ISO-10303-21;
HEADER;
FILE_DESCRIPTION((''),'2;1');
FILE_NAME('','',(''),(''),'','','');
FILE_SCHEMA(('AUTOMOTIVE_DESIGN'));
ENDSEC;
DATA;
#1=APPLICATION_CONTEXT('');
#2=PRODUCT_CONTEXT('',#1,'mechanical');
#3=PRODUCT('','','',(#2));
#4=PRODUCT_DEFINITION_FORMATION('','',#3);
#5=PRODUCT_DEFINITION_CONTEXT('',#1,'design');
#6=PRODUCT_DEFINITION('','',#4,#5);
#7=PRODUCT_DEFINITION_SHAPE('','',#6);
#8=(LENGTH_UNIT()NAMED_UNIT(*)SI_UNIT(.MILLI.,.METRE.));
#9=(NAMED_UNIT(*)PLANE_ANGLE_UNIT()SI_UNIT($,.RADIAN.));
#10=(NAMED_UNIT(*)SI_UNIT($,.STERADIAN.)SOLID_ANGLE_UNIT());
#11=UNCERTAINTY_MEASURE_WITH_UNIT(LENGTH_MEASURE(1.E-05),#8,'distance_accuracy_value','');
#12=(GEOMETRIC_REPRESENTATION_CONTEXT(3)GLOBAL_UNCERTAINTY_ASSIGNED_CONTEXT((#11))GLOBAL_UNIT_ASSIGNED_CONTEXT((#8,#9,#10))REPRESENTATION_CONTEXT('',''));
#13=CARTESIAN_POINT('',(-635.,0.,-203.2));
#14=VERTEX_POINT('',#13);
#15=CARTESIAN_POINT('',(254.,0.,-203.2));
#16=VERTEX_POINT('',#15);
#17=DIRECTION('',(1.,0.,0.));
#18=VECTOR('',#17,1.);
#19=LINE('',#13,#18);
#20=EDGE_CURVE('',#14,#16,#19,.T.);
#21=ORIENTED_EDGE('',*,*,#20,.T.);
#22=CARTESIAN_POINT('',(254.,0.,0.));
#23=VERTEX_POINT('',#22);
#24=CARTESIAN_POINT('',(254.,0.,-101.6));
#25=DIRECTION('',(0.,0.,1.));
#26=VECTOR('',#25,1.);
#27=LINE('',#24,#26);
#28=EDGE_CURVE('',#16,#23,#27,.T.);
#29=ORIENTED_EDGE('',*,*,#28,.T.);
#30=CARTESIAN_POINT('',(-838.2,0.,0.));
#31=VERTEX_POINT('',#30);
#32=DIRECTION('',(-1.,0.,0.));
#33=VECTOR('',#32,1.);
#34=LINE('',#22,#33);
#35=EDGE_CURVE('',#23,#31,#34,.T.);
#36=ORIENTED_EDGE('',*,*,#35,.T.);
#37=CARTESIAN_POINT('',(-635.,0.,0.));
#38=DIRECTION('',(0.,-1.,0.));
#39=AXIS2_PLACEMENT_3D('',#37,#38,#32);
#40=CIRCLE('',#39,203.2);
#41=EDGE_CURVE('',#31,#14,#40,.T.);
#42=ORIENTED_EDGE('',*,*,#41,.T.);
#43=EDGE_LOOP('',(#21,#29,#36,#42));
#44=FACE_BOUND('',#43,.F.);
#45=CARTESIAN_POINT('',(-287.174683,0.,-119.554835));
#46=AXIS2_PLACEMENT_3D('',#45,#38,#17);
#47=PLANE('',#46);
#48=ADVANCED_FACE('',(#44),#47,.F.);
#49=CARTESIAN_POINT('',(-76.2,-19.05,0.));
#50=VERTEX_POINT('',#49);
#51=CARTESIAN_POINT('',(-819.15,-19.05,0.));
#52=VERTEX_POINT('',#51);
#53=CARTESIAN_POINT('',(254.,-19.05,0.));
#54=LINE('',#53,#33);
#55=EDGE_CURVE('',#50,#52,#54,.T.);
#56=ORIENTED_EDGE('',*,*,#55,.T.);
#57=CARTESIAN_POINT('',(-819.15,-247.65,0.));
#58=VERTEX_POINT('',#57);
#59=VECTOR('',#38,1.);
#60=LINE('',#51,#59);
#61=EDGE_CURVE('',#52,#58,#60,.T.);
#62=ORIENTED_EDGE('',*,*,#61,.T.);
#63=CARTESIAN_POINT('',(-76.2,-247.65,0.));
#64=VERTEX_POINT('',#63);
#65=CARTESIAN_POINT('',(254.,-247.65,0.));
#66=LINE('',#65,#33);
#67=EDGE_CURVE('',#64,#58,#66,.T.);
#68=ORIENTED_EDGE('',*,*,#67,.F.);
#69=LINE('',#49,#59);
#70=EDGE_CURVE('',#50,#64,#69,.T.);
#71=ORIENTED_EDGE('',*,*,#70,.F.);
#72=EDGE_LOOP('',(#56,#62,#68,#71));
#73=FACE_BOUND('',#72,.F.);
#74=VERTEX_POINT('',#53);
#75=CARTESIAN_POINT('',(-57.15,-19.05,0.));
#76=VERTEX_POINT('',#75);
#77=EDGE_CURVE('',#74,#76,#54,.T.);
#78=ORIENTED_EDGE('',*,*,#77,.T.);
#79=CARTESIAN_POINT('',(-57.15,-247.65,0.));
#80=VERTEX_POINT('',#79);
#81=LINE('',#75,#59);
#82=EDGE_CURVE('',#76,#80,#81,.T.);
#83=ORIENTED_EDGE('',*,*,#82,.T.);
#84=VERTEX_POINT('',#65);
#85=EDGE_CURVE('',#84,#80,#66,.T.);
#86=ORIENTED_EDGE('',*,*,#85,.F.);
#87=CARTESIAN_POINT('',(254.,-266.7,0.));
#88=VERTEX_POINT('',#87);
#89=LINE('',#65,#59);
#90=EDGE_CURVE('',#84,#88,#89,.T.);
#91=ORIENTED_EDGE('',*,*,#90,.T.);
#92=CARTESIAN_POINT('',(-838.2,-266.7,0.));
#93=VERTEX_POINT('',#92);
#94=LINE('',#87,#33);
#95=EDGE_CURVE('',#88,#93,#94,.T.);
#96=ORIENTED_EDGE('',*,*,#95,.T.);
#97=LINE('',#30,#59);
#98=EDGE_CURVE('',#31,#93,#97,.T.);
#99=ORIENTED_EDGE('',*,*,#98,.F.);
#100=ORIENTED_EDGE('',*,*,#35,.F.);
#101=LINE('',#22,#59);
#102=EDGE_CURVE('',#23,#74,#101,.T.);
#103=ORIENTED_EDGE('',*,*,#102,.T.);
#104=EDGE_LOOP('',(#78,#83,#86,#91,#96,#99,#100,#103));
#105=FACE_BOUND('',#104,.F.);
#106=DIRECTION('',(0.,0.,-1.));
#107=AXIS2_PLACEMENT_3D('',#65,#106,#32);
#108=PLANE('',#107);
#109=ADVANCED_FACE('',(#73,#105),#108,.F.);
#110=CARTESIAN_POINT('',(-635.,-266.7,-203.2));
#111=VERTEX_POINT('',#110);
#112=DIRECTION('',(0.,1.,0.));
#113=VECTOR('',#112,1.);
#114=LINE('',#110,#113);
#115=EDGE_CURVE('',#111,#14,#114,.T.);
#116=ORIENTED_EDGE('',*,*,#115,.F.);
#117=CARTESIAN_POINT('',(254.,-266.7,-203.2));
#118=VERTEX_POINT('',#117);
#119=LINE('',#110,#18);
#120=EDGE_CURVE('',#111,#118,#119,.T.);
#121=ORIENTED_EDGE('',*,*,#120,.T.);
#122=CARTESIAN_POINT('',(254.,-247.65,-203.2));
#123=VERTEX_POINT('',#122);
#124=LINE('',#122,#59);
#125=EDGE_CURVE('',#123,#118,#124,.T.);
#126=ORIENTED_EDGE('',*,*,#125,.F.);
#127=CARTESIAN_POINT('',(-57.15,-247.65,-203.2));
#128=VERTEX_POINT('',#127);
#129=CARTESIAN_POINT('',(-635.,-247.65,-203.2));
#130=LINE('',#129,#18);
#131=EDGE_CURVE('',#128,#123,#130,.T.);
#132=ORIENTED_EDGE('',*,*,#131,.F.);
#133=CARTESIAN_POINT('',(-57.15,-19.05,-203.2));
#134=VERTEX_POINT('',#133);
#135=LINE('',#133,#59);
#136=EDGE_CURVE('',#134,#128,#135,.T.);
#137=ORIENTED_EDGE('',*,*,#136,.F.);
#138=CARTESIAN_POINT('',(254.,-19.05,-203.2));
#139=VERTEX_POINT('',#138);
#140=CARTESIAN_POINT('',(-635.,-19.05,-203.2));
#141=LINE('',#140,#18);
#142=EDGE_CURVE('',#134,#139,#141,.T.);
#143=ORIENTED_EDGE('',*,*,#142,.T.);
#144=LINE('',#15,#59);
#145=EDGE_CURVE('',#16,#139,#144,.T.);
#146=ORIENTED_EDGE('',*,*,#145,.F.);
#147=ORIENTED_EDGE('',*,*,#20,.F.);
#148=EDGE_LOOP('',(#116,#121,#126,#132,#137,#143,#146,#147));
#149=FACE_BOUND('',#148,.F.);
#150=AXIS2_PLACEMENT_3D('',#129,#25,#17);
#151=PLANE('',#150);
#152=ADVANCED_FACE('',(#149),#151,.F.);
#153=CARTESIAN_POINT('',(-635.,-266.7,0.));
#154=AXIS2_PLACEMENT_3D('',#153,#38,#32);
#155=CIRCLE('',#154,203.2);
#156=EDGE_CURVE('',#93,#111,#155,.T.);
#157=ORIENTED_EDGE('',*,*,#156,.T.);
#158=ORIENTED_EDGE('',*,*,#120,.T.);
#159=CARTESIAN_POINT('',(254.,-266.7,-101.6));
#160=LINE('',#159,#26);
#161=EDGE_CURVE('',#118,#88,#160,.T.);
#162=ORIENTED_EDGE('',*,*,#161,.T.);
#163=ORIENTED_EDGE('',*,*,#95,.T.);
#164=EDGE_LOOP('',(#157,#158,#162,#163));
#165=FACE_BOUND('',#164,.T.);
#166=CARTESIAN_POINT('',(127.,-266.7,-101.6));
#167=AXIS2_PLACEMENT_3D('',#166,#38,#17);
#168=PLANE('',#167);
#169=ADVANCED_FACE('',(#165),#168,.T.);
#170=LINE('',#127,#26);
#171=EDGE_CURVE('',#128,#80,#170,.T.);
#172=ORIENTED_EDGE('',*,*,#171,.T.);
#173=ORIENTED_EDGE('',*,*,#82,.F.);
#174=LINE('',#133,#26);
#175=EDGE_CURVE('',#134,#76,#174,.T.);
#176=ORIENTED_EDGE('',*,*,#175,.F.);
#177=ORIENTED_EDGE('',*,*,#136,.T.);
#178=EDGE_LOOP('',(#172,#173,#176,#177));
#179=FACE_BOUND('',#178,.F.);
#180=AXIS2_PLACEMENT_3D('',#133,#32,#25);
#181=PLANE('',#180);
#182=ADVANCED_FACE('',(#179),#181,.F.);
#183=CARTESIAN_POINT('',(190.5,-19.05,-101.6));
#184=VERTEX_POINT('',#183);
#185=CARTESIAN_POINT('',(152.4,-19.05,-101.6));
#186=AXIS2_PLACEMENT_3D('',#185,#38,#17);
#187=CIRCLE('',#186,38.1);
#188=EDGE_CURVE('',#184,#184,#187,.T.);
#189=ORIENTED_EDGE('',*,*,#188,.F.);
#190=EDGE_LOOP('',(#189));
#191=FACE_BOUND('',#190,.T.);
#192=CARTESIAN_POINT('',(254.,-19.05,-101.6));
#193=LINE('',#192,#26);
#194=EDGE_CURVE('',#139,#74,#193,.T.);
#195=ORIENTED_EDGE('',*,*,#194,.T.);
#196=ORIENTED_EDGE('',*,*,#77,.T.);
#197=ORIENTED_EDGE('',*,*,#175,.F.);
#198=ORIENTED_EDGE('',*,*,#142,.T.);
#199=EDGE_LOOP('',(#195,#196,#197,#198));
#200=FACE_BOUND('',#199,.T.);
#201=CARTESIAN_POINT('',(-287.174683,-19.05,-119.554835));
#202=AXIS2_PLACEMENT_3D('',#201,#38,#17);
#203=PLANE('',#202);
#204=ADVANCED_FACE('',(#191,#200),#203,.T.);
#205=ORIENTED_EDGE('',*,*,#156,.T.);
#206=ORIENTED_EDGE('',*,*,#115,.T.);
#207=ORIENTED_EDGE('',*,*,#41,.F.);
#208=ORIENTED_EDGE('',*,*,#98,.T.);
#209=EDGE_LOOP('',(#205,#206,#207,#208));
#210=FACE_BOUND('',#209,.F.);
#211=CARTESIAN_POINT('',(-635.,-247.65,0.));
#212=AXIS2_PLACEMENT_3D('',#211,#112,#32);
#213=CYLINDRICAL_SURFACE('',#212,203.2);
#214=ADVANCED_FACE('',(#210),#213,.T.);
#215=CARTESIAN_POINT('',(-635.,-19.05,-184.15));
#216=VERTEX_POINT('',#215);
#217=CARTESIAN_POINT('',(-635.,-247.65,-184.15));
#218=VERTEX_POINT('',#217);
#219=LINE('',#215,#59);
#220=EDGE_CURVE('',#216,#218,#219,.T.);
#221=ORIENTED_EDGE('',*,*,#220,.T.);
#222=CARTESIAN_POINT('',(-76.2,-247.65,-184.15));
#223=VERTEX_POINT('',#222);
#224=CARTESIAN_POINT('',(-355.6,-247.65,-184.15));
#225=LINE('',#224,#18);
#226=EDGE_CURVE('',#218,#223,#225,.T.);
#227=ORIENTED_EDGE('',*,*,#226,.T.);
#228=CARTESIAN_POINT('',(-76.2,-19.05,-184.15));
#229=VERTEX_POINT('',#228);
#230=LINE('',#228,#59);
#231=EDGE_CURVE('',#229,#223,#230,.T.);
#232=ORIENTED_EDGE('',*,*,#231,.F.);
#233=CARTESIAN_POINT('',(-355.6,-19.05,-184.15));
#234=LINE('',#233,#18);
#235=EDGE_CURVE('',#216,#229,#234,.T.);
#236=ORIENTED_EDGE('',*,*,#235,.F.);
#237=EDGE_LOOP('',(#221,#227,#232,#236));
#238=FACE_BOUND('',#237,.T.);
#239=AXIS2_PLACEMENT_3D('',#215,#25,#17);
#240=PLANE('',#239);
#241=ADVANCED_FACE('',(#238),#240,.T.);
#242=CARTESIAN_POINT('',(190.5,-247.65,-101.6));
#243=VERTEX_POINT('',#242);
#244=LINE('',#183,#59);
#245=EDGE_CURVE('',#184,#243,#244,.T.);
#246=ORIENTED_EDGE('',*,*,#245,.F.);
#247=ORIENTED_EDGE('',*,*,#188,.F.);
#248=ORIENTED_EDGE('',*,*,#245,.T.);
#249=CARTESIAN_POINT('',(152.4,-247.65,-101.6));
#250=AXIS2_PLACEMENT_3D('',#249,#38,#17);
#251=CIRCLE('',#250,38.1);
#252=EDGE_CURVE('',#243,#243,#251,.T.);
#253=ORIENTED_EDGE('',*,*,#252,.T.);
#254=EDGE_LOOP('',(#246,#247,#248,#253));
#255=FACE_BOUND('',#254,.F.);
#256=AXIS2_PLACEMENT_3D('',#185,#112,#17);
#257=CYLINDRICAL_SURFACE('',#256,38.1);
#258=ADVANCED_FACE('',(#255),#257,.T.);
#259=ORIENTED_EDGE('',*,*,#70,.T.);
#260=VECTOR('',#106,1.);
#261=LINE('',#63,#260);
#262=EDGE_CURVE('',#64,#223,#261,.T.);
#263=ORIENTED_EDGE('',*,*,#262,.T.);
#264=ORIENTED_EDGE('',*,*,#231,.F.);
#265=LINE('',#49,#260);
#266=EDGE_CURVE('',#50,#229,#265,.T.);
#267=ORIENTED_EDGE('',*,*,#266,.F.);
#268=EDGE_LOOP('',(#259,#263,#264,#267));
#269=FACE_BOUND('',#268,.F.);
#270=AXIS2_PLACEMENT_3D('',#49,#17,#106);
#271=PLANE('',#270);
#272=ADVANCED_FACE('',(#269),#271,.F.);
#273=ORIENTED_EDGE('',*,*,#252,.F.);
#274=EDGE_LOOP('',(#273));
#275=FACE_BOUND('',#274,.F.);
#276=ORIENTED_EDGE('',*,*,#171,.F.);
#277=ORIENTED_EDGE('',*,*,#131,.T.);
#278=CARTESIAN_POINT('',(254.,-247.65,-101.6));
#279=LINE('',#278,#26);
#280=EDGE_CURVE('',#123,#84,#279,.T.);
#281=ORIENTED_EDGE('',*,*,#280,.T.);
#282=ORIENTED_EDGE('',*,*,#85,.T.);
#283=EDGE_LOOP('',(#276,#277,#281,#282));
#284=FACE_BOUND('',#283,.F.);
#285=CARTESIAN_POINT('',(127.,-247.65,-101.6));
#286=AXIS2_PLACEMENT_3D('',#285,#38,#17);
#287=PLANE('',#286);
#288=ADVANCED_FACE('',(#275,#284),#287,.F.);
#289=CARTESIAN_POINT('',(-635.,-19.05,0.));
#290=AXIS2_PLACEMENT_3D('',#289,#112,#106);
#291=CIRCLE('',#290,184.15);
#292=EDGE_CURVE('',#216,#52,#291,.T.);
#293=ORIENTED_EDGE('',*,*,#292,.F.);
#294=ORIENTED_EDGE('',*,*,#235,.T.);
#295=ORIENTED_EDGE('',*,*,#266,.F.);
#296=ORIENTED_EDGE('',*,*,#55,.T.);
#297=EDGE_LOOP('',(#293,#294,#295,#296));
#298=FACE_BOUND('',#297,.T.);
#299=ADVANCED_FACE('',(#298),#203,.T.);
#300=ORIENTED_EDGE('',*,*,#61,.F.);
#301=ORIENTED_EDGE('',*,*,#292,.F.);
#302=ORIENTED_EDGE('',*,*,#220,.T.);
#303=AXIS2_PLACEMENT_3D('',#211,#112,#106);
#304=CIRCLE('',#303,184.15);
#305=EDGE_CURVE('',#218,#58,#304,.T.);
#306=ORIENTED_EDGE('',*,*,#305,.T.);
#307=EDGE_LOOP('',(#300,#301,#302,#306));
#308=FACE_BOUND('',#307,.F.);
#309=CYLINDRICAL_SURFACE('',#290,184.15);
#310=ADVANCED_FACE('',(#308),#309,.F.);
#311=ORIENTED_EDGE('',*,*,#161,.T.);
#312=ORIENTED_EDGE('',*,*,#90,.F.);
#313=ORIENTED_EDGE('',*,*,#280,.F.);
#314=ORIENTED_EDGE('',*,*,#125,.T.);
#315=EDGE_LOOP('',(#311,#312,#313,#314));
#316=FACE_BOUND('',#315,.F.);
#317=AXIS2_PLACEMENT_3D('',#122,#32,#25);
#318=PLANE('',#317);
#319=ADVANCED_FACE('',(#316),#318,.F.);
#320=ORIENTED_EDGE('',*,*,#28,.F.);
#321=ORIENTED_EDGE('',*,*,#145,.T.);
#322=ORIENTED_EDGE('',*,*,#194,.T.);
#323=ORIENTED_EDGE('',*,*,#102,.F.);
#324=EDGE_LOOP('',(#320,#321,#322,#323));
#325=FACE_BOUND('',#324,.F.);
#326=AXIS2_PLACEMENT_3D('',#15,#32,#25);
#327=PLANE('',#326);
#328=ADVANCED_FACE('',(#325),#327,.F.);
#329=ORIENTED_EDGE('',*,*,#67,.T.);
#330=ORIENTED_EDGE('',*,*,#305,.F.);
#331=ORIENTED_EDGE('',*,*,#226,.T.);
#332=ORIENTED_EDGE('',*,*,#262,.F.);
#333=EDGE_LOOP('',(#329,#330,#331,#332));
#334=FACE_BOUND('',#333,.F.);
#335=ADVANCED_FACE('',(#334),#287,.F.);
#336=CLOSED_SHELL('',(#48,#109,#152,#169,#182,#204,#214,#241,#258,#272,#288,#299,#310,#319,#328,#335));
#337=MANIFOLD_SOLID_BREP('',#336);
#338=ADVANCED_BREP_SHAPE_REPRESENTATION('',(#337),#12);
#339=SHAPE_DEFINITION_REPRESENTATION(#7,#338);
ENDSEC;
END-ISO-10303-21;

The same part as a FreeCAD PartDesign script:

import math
import FreeCAD as App
import Part
import Sketcher

V = App.Vector
Q = App.Units.Quantity

doc = App.newDocument("Part")
body = doc.addObject("PartDesign::Body", "Body")

# Sketch on XZ plane
sketch1 = body.newObject("Sketcher::SketchObject", "Sketch")
sketch1.AttachmentSupport = (doc.getObject("XZ_Plane"), [""])
sketch1.MapMode = "FlatFace"
sketch1.addGeometry(Part.ArcOfCircle(Part.Circle(V(-635, 0, 0), V(0, 0, 1), 203), math.radians(180), math.radians(270)), False)
sketch1.addGeometry(Part.LineSegment(V(-635, -203, 0), V(254, -203, 0)), False)
sketch1.addGeometry(Part.LineSegment(V(254, -203, 0), V(254, 0, 0)), False)
sketch1.addGeometry(Part.LineSegment(V(254, 0, 0), V(-838, 0, 0)), False)
sketch1.addConstraint(Sketcher.Constraint("Tangent", 0, 2, 1, 1))
sketch1.addConstraint(Sketcher.Constraint("Coincident", 1, 2, 2, 1))
sketch1.addConstraint(Sketcher.Constraint("Coincident", 2, 2, 3, 1))
sketch1.addConstraint(Sketcher.Constraint("Coincident", 3, 2, 0, 1))
sketch1.addConstraint(Sketcher.Constraint("Horizontal", 1))
sketch1.addConstraint(Sketcher.Constraint("Vertical", 2))
sketch1.addConstraint(Sketcher.Constraint("Horizontal", 3))
sketch1.addConstraint(Sketcher.Constraint("PointOnObject", 0, 3, -1))
sketch1.addConstraint(Sketcher.Constraint("PointOnObject", 2, 2, -1))
sketch1.addConstraint(Sketcher.Constraint("Radius", 0, Q("8 in")))
sketch1.addConstraint(Sketcher.Constraint("DistanceX", 1, 1, 1, 2, Q("35 in")))
sketch1.addConstraint(Sketcher.Constraint("DistanceX", 0, 3, -1, 1, Q("25 in")))
pad1 = body.newObject("PartDesign::Pad", "Pad")
pad1.Profile = sketch1
pad1.Length = Q("0.75 in")

# Sketch on XZ plane
sketch2 = body.newObject("Sketcher::SketchObject", "Sketch001")
sketch2.AttachmentSupport = (doc.getObject("XZ_Plane"), [""])
sketch2.MapMode = "FlatFace"
sketch2.AttachmentOffset = App.Placement(V(0, 0, 0.75 * 25.4), App.Rotation())
sketch2.addGeometry(Part.Circle(V(152, -102, 0), V(0, 0, 1), 38), False)
sketch2.addGeometry(Part.LineSegment(V(-57, -203, 0), V(-57, 0, 0)), False)
sketch2.addGeometry(Part.LineSegment(V(-57, 0, 0), V(-76, 0, 0)), False)
sketch2.addGeometry(Part.LineSegment(V(-76, 0, 0), V(-76, -184, 0)), False)
sketch2.addGeometry(Part.LineSegment(V(-76, -184, 0), V(-635, -184, 0)), False)
sketch2.addGeometry(Part.ArcOfCircle(Part.Circle(V(-635, 0, 0), V(0, 0, 1), 184), math.radians(180), math.radians(270)), False)
sketch2.addGeometry(Part.LineSegment(V(-819, 0, 0), V(-838, 0, 0)), False)
sketch2.addGeometry(Part.ArcOfCircle(Part.Circle(V(-635, 0, 0), V(0, 0, 1), 203), math.radians(180), math.radians(270)), False)
sketch2.addGeometry(Part.LineSegment(V(-635, -203, 0), V(-57, -203, 0)), False)
sketch2.addConstraint(Sketcher.Constraint("Coincident", 1, 2, 2, 1))
sketch2.addConstraint(Sketcher.Constraint("Coincident", 2, 2, 3, 1))
sketch2.addConstraint(Sketcher.Constraint("Coincident", 3, 2, 4, 1))
sketch2.addConstraint(Sketcher.Constraint("Tangent", 4, 2, 5, 2))
sketch2.addConstraint(Sketcher.Constraint("Coincident", 5, 1, 6, 1))
sketch2.addConstraint(Sketcher.Constraint("Coincident", 6, 2, 7, 1))
sketch2.addConstraint(Sketcher.Constraint("Tangent", 7, 2, 8, 1))
sketch2.addConstraint(Sketcher.Constraint("Coincident", 8, 2, 1, 1))
sketch2.addConstraint(Sketcher.Constraint("Vertical", 1))
sketch2.addConstraint(Sketcher.Constraint("Horizontal", 2))
sketch2.addConstraint(Sketcher.Constraint("Vertical", 3))
sketch2.addConstraint(Sketcher.Constraint("Horizontal", 4))
sketch2.addConstraint(Sketcher.Constraint("Horizontal", 6))
sketch2.addConstraint(Sketcher.Constraint("Horizontal", 8))
sketch2.addConstraint(Sketcher.Constraint("Coincident", 7, 3, 5, 3))
sketch2.addConstraint(Sketcher.Constraint("PointOnObject", 5, 3, -1))
sketch2.addConstraint(Sketcher.Constraint("PointOnObject", 1, 2, -1))
sketch2.addConstraint(Sketcher.Constraint("PointOnObject", 5, 1, -1))
sketch2.addConstraint(Sketcher.Constraint("Equal", 2, 6))
sketch2.addConstraint(Sketcher.Constraint("Diameter", 0, Q("3 in")))
sketch2.addConstraint(Sketcher.Constraint("Radius", 7, Q("8 in")))
sketch2.addConstraint(Sketcher.Constraint("DistanceX", 4, 2, 4, 1, Q("22 in")))
sketch2.addConstraint(Sketcher.Constraint("Radius", 5, Q("7.25 in")))
sketch2.addConstraint(Sketcher.Constraint("DistanceX", -1, 1, 0, 3, Q("6 in")))
sketch2.addConstraint(Sketcher.Constraint("DistanceY", 0, 3, -1, 1, Q("4 in")))
sketch2.addConstraint(Sketcher.Constraint("DistanceX", 5, 3, -1, 1, Q("25 in")))
pad2 = body.newObject("PartDesign::Pad", "Pad001")
pad2.Profile = sketch2
pad2.Length = Q("9 in")

# Sketch on XZ plane
sketch3 = body.newObject("Sketcher::SketchObject", "Sketch002")
sketch3.AttachmentSupport = (doc.getObject("XZ_Plane"), [""])
sketch3.MapMode = "FlatFace"
sketch3.AttachmentOffset = App.Placement(V(0, 0, 9.75 * 25.4), App.Rotation())
sketch3.addGeometry(Part.LineSegment(V(254, -203, 0), V(254, 0, 0)), False)
sketch3.addGeometry(Part.LineSegment(V(254, 0, 0), V(-838, 0, 0)), False)
sketch3.addGeometry(Part.ArcOfCircle(Part.Circle(V(-635, 0, 0), V(0, 0, 1), 203), math.radians(180), math.radians(270)), False)
sketch3.addGeometry(Part.LineSegment(V(-635, -203, 0), V(254, -203, 0)), False)
sketch3.addConstraint(Sketcher.Constraint("Coincident", 0, 2, 1, 1))
sketch3.addConstraint(Sketcher.Constraint("Coincident", 1, 2, 2, 1))
sketch3.addConstraint(Sketcher.Constraint("Tangent", 2, 2, 3, 1))
sketch3.addConstraint(Sketcher.Constraint("Coincident", 3, 2, 0, 1))
sketch3.addConstraint(Sketcher.Constraint("Vertical", 0))
sketch3.addConstraint(Sketcher.Constraint("Horizontal", 1))
sketch3.addConstraint(Sketcher.Constraint("Horizontal", 3))
sketch3.addConstraint(Sketcher.Constraint("PointOnObject", 2, 3, -1))
sketch3.addConstraint(Sketcher.Constraint("PointOnObject", 0, 2, -1))
sketch3.addConstraint(Sketcher.Constraint("Radius", 2, Q("8 in")))
sketch3.addConstraint(Sketcher.Constraint("DistanceX", 1, 2, 1, 1, Q("43 in")))
sketch3.addConstraint(Sketcher.Constraint("DistanceX", 2, 3, -1, 1, Q("25 in")))
pad3 = body.newObject("PartDesign::Pad", "Pad002")
pad3.Profile = sketch3
pad3.Length = Q("0.75 in")

doc.recompute()
